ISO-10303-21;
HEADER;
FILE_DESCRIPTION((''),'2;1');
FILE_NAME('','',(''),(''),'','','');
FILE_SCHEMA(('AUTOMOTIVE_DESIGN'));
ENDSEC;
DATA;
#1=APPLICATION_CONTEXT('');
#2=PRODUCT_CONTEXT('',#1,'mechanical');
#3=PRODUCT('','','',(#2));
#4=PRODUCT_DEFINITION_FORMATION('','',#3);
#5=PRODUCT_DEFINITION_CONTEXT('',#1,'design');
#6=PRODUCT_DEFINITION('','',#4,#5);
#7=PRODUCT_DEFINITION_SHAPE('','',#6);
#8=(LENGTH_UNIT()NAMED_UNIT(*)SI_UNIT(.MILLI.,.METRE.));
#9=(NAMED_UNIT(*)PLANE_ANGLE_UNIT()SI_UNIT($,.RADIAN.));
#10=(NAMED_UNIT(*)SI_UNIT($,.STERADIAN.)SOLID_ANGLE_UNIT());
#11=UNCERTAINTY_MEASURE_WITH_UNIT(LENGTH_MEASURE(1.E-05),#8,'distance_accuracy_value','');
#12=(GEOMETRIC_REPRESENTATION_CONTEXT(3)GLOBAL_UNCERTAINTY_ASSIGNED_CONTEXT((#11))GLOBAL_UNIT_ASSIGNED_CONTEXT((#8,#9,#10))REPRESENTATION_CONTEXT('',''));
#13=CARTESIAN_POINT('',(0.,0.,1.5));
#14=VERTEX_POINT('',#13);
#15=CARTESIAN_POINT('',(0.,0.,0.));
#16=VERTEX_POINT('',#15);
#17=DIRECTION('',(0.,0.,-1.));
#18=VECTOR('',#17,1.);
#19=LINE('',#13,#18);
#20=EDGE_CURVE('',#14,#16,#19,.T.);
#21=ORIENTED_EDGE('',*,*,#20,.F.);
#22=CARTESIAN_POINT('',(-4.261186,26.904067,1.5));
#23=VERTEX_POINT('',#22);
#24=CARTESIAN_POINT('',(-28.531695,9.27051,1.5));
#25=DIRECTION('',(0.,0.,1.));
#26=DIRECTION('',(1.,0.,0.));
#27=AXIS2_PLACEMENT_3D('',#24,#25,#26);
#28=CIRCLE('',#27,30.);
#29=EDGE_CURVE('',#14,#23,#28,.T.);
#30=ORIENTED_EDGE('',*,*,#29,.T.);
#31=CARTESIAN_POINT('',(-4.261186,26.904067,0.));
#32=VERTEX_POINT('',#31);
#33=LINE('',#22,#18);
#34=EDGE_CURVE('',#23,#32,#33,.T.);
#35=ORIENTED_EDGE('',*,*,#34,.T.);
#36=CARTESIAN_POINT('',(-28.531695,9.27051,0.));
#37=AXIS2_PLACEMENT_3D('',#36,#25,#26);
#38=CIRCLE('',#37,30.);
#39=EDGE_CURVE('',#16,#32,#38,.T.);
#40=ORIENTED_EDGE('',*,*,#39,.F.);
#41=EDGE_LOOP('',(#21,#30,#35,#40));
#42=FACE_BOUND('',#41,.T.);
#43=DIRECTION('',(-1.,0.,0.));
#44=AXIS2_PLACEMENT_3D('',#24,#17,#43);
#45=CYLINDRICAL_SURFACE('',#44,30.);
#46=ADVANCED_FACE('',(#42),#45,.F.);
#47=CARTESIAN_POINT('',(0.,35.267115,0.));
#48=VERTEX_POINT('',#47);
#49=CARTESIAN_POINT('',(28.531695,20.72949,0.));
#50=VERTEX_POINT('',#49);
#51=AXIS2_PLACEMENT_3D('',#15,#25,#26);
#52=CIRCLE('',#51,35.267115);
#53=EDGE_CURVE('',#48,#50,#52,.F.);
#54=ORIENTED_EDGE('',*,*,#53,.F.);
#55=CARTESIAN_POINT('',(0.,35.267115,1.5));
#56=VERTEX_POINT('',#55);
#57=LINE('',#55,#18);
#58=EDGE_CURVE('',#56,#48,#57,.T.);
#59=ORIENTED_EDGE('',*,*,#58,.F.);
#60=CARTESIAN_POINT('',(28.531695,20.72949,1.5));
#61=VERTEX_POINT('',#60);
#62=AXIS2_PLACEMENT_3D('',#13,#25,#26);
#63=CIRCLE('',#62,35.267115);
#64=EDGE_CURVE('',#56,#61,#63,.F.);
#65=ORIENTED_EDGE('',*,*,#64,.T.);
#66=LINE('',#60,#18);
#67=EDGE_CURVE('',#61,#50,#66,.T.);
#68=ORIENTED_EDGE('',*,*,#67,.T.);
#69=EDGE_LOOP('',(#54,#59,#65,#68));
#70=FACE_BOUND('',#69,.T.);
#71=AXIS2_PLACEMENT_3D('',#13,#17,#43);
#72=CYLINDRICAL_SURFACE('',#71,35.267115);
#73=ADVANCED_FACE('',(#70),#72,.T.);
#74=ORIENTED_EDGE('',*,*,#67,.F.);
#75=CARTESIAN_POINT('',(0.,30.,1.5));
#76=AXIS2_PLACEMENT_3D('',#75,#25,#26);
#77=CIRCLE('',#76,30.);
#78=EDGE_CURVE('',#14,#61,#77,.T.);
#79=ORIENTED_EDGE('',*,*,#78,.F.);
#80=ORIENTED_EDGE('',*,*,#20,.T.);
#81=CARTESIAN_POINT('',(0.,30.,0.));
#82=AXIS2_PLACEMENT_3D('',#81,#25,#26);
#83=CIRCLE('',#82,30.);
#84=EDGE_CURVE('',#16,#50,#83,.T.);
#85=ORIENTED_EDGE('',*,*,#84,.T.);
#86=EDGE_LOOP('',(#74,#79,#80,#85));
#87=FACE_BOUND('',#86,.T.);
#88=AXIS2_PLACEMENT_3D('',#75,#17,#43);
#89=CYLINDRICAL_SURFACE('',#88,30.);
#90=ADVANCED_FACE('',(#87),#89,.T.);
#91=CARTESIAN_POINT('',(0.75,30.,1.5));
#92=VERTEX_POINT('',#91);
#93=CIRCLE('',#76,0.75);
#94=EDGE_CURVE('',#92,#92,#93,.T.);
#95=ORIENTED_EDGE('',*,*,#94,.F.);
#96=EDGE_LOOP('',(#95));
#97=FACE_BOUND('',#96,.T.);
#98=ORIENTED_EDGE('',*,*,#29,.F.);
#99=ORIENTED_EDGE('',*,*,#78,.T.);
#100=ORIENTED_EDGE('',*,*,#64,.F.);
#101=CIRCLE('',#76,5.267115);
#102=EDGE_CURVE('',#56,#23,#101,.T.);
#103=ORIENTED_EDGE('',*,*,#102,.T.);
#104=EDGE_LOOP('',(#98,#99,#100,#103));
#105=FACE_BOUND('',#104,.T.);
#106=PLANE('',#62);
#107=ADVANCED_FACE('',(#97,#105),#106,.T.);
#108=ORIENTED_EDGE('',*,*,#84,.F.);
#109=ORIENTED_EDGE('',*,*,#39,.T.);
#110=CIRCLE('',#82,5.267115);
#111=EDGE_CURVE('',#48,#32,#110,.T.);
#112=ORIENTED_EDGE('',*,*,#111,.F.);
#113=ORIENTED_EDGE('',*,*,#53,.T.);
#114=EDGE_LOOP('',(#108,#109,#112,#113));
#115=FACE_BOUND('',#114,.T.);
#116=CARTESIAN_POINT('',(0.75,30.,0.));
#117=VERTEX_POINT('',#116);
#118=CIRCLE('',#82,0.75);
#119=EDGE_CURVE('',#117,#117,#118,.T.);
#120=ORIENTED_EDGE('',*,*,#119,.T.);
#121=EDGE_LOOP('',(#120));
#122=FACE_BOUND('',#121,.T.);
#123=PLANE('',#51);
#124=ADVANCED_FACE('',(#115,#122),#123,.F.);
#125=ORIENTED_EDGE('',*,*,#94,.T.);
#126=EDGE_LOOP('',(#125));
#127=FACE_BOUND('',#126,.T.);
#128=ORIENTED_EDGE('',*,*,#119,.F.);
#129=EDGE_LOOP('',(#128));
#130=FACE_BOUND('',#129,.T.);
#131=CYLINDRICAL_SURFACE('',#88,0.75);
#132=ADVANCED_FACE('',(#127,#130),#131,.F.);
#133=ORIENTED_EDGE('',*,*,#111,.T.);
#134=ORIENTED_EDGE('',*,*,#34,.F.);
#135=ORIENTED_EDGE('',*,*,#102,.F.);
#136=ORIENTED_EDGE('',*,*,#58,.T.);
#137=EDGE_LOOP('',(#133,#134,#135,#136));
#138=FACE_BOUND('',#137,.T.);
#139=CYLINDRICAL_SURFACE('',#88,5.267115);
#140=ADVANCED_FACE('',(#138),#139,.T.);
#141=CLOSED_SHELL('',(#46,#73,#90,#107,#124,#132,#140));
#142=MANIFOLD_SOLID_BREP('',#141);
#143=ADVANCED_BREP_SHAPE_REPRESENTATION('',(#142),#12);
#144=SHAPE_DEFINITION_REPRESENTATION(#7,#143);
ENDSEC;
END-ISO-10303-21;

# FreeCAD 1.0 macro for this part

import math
import FreeCAD as App
import Part
import Sketcher

V = App.Vector
Q = App.Units.Quantity

doc = App.newDocument("Part")
body = doc.addObject("PartDesign::Body", "Body")

# Sketch on XY plane
sketch1 = body.newObject("Sketcher::SketchObject", "Sketch")
sketch1.AttachmentSupport = (doc.getObject("XY_Plane"), [""])
sketch1.MapMode = "FlatFace"
sketch1.addGeometry(Part.ArcOfCircle(Part.Circle(V(0, 0, 0), V(0, 0, 1), 35.3), math.radians(36), math.radians(90)), False)
sketch1.addGeometry(Part.ArcOfCircle(Part.Circle(V(0, 30, 0), V(0, 0, 1), 5.3), math.radians(90), math.radians(216)), False)
sketch1.addGeometry(Part.ArcOfCircle(Part.Circle(V(-28.5, 9.3, 0), V(0, 0, 1), 30), math.radians(-18), math.radians(36)), False)
sketch1.addGeometry(Part.ArcOfCircle(Part.Circle(V(0, 30, 0), V(0, 0, 1), 30), math.radians(-90), math.radians(-18)), False)
sketch1.addGeometry(Part.Circle(V(0, 30, 0), V(0, 0, 1), 0.8), False)
sketch1.addConstraint(Sketcher.Constraint("Tangent", 0, 2, 1, 1))
sketch1.addConstraint(Sketcher.Constraint("Tangent", 1, 2, 2, 2))
sketch1.addConstraint(Sketcher.Constraint("Coincident", 2, 1, 3, 1))
sketch1.addConstraint(Sketcher.Constraint("Coincident", 3, 2, 0, 1))
sketch1.addConstraint(Sketcher.Constraint("Coincident", 0, 3, -1, 1))
sketch1.addConstraint(Sketcher.Constraint("Coincident", 2, 1, -1, 1))
sketch1.addConstraint(Sketcher.Constraint("Coincident", 3, 3, 1, 3))
sketch1.addConstraint(Sketcher.Constraint("Coincident", 4, 3, 1, 3))
sketch1.addConstraint(Sketcher.Constraint("Equal", 2, 3))
sketch1.addConstraint(Sketcher.Constraint("PointOnObject", 1, 3, -2))
sketch1.addConstraint(Sketcher.Constraint("Radius", 2, Q("30 mm")))
sketch1.addConstraint(Sketcher.Constraint("Diameter", 4, Q("1.5 mm")))
sketch1.addConstraint(Sketcher.Constraint("Radius", 0, Q("35.267115 mm")))
pad1 = body.newObject("PartDesign::Pad", "Pad")
pad1.Profile = sketch1
pad1.Length = 1.5

doc.recompute()
